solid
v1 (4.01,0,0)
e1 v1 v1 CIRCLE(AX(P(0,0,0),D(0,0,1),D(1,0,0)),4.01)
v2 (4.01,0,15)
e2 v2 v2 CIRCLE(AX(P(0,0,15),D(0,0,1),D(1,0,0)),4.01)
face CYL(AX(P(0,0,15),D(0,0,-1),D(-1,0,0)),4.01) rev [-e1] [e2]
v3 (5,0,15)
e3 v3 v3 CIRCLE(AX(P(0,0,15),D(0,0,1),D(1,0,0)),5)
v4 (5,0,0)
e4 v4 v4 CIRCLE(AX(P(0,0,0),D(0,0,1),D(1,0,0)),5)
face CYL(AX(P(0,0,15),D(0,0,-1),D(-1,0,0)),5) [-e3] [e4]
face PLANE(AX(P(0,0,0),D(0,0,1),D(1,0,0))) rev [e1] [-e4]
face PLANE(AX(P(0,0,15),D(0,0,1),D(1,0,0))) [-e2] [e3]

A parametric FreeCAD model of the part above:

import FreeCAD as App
import Part
import Sketcher

V = App.Vector
Q = App.Units.Quantity

doc = App.newDocument("Part")
body = doc.addObject("PartDesign::Body", "Body")

# Sketch on XY plane
sketch1 = doc.addObject("Sketcher::SketchObject", "Sketch")
body.addObject(sketch1)
sketch1.AttachmentSupport = (doc.XY_Plane, [""])
sketch1.MapMode = "FlatFace"
sketch1.addGeometry([
    Part.Circle(V(0, 0, 0), V(0, 0, 1), 5),
    Part.Circle(V(0, 0, 0), V(0, 0, 1), 4),
], False)
sketch1.addConstraint([
    Sketcher.Constraint("Coincident", 0, 3, -1, 1),
    Sketcher.Constraint("Coincident", 1, 3, -1, 1),
    Sketcher.Constraint("Diameter", 0, Q("10 mm")),
    Sketcher.Constraint("Diameter", 1, Q("8.02 mm")),
])
pad1 = doc.addObject("PartDesign::Pad", "Pad")
body.addObject(pad1)
pad1.Profile = sketch1
pad1.Length = 15

doc.recompute()
